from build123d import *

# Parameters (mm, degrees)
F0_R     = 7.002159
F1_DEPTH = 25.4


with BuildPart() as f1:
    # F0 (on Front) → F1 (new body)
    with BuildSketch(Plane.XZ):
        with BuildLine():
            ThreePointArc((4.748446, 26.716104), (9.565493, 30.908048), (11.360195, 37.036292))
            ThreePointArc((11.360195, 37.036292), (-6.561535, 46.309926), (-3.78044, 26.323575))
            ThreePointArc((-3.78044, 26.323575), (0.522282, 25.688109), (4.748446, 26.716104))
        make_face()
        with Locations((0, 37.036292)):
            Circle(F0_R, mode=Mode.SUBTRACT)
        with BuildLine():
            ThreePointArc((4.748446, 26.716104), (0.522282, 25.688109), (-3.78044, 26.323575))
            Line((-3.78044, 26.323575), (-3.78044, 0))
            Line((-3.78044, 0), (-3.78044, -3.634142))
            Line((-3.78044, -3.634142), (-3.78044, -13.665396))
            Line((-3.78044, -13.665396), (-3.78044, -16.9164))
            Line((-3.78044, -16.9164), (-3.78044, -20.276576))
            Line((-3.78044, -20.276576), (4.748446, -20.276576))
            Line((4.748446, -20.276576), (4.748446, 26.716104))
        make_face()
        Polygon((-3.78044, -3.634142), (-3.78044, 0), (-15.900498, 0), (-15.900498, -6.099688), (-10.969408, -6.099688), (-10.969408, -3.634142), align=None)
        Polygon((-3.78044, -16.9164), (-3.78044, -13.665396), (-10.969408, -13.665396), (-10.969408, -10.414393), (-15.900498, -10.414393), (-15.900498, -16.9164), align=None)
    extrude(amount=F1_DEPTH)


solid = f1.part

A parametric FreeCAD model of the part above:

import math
import FreeCAD as App
import Part
import Sketcher

V = App.Vector
Q = App.Units.Quantity

doc = App.newDocument("Part")
body = doc.addObject("PartDesign::Body", "Body")

# Sketch on XZ plane
sketch1 = body.newObject("Sketcher::SketchObject", "Sketch")
sketch1.AttachmentSupport = (doc.getObject("XZ_Plane"), [""])
sketch1.MapMode = "FlatFace"
sketch1.addGeometry(Part.ArcOfCircle(Part.Circle(V(0, 37, 0), V(0, 0, 1), 11.4), math.radians(-65), math.radians(0)), False)
sketch1.addGeometry(Part.ArcOfCircle(Part.Circle(V(0, 37, 0), V(0, 0, 1), 11.4), math.radians(0), math.radians(251)), False)
sketch1.addGeometry(Part.LineSegment(V(-3.8, 26.3, 0), V(-3.8, 0, 0)), False)
sketch1.addGeometry(Part.LineSegment(V(-3.8, 0, 0), V(-15.9, 0, 0)), False)
sketch1.addGeometry(Part.LineSegment(V(-15.9, 0, 0), V(-15.9, -6.1, 0)), False)
sketch1.addGeometry(Part.LineSegment(V(-15.9, -6.1, 0), V(-11, -6.1, 0)), False)
sketch1.addGeometry(Part.LineSegment(V(-11, -6.1, 0), V(-11, -3.6, 0)), False)
sketch1.addGeometry(Part.LineSegment(V(-11, -3.6, 0), V(-3.8, -3.6, 0)), False)
sketch1.addGeometry(Part.LineSegment(V(-3.8, -3.6, 0), V(-3.8, -13.7, 0)), False)
sketch1.addGeometry(Part.LineSegment(V(-3.8, -13.7, 0), V(-11, -13.7, 0)), False)
sketch1.addGeometry(Part.LineSegment(V(-11, -13.7, 0), V(-11, -10.4, 0)), False)
sketch1.addGeometry(Part.LineSegment(V(-11, -10.4, 0), V(-15.9, -10.4, 0)), False)
sketch1.addGeometry(Part.LineSegment(V(-15.9, -10.4, 0), V(-15.9, -16.9, 0)), False)
sketch1.addGeometry(Part.LineSegment(V(-15.9, -16.9, 0), V(-3.8, -16.9, 0)), False)
sketch1.addGeometry(Part.LineSegment(V(-3.8, -16.9, 0), V(-3.8, -20.3, 0)), False)
sketch1.addGeometry(Part.LineSegment(V(-3.8, -20.3, 0), V(4.7, -20.3, 0)), False)
sketch1.addGeometry(Part.LineSegment(V(4.7, -20.3, 0), V(4.7, 26.7, 0)), False)
sketch1.addGeometry(Part.Circle(V(0, 37, 0), V(0, 0, 1), 7), False)
sketch1.addConstraint(Sketcher.Constraint("Tangent", 0, 2, 1, 1))
sketch1.addConstraint(Sketcher.Constraint("Coincident", 1, 2, 2, 1))
sketch1.addConstraint(Sketcher.Constraint("Coincident", 2, 2, 3, 1))
sketch1.addConstraint(Sketcher.Constraint("Coincident", 3, 2, 4, 1))
sketch1.addConstraint(Sketcher.Constraint("Coincident", 4, 2, 5, 1))
sketch1.addConstraint(Sketcher.Constraint("Coincident", 5, 2, 6, 1))
sketch1.addConstraint(Sketcher.Constraint("Coincident", 6, 2, 7, 1))
sketch1.addConstraint(Sketcher.Constraint("Coincident", 7, 2, 8, 1))
sketch1.addConstraint(Sketcher.Constraint("Coincident", 8, 2, 9, 1))
sketch1.addConstraint(Sketcher.Constraint("Coincident", 9, 2, 10, 1))
sketch1.addConstraint(Sketcher.Constraint("Coincident", 10, 2, 11, 1))
sketch1.addConstraint(Sketcher.Constraint("Coincident", 11, 2, 12, 1))
sketch1.addConstraint(Sketcher.Constraint("Coincident", 12, 2, 13, 1))
sketch1.addConstraint(Sketcher.Constraint("Coincident", 13, 2, 14, 1))
sketch1.addConstraint(Sketcher.Constraint("Coincident", 14, 2, 15, 1))
sketch1.addConstraint(Sketcher.Constraint("Coincident", 15, 2, 16, 1))
sketch1.addConstraint(Sketcher.Constraint("Coincident", 16, 2, 0, 1))
sketch1.addConstraint(Sketcher.Constraint("Vertical", 2))
sketch1.addConstraint(Sketcher.Constraint("Horizontal", 3))
sketch1.addConstraint(Sketcher.Constraint("Vertical", 4))
sketch1.addConstraint(Sketcher.Constraint("Horizontal", 5))
sketch1.addConstraint(Sketcher.Constraint("Vertical", 6))
sketch1.addConstraint(Sketcher.Constraint("Horizontal", 7))
sketch1.addConstraint(Sketcher.Constraint("Vertical", 8))
sketch1.addConstraint(Sketcher.Constraint("Horizontal", 9))
sketch1.addConstraint(Sketcher.Constraint("Vertical", 10))
sketch1.addConstraint(Sketcher.Constraint("Horizontal", 11))
sketch1.addConstraint(Sketcher.Constraint("Vertical", 12))
sketch1.addConstraint(Sketcher.Constraint("Horizontal", 13))
sketch1.addConstraint(Sketcher.Constraint("Vertical", 14))
sketch1.addConstraint(Sketcher.Constraint("Horizontal", 15))
sketch1.addConstraint(Sketcher.Constraint("Vertical", 16))
sketch1.addConstraint(Sketcher.Constraint("Coincident", 17, 3, 0, 3))
sketch1.addConstraint(Sketcher.Constraint("Equal", 0, 1))
sketch1.addConstraint(Sketcher.Constraint("PointOnObject", 0, 3, -2))
sketch1.addConstraint(Sketcher.Constraint("PointOnObject", 2, 2, -1))
sketch1.addConstraint(Sketcher.Constraint("Horizontal", 17, 3, 0, 2))
sketch1.addConstraint(Sketcher.Constraint("Vertical", 2, 2, 7, 2))
sketch1.addConstraint(Sketcher.Constraint("Vertical", 6, 2, 9, 2))
sketch1.addConstraint(Sketcher.Constraint("Vertical", 4, 2, 11, 2))
sketch1.addConstraint(Sketcher.Constraint("Vertical", 8, 2, 13, 2))
sketch1.addConstraint(Sketcher.Constraint("DistanceY", 12, 2, -1, 1, Q("0.666 in")))
sketch1.addConstraint(Sketcher.Constraint("Diameter", 17, Q("14.004318 mm")))
sketch1.addConstraint(Sketcher.Constraint("Radius", 0, Q("11.360193 mm")))
sketch1.addConstraint(Sketcher.Constraint("DistanceX", 5, 1, 5, 2, Q("4.93109 mm")))
sketch1.addConstraint(Sketcher.Constraint("DistanceY", 4, 2, 4, 1, Q("6.099688 mm")))
sketch1.addConstraint(Sketcher.Constraint("DistanceY", 16, 1, 16, 2, Q("46.99268 mm")))
sketch1.addConstraint(Sketcher.Constraint("DistanceX", 3, 2, -1, 1, Q("15.900498 mm")))
sketch1.addConstraint(Sketcher.Constraint("DistanceX", 3, 2, 3, 1, Q("12.120058 mm")))
sketch1.addConstraint(Sketcher.Constraint("DistanceX", 15, 1, 15, 2, Q("8.528886 mm")))
sketch1.addConstraint(Sketcher.Constraint("DistanceY", 2, 2, 2, 1, Q("26.323575 mm")))
sketch1.addConstraint(Sketcher.Constraint("DistanceY", 6, 1, 6, 2, Q("2.465546 mm")))
sketch1.addConstraint(Sketcher.Constraint("DistanceY", 8, 2, 8, 1, Q("10.031254 mm")))
sketch1.addConstraint(Sketcher.Constraint("DistanceY", 10, 1, 10, 2, Q("3.251003 mm")))
pad1 = body.newObject("PartDesign::Pad", "Pad")
pad1.Profile = sketch1
pad1.Length = Q("1 in")

doc.recompute()
